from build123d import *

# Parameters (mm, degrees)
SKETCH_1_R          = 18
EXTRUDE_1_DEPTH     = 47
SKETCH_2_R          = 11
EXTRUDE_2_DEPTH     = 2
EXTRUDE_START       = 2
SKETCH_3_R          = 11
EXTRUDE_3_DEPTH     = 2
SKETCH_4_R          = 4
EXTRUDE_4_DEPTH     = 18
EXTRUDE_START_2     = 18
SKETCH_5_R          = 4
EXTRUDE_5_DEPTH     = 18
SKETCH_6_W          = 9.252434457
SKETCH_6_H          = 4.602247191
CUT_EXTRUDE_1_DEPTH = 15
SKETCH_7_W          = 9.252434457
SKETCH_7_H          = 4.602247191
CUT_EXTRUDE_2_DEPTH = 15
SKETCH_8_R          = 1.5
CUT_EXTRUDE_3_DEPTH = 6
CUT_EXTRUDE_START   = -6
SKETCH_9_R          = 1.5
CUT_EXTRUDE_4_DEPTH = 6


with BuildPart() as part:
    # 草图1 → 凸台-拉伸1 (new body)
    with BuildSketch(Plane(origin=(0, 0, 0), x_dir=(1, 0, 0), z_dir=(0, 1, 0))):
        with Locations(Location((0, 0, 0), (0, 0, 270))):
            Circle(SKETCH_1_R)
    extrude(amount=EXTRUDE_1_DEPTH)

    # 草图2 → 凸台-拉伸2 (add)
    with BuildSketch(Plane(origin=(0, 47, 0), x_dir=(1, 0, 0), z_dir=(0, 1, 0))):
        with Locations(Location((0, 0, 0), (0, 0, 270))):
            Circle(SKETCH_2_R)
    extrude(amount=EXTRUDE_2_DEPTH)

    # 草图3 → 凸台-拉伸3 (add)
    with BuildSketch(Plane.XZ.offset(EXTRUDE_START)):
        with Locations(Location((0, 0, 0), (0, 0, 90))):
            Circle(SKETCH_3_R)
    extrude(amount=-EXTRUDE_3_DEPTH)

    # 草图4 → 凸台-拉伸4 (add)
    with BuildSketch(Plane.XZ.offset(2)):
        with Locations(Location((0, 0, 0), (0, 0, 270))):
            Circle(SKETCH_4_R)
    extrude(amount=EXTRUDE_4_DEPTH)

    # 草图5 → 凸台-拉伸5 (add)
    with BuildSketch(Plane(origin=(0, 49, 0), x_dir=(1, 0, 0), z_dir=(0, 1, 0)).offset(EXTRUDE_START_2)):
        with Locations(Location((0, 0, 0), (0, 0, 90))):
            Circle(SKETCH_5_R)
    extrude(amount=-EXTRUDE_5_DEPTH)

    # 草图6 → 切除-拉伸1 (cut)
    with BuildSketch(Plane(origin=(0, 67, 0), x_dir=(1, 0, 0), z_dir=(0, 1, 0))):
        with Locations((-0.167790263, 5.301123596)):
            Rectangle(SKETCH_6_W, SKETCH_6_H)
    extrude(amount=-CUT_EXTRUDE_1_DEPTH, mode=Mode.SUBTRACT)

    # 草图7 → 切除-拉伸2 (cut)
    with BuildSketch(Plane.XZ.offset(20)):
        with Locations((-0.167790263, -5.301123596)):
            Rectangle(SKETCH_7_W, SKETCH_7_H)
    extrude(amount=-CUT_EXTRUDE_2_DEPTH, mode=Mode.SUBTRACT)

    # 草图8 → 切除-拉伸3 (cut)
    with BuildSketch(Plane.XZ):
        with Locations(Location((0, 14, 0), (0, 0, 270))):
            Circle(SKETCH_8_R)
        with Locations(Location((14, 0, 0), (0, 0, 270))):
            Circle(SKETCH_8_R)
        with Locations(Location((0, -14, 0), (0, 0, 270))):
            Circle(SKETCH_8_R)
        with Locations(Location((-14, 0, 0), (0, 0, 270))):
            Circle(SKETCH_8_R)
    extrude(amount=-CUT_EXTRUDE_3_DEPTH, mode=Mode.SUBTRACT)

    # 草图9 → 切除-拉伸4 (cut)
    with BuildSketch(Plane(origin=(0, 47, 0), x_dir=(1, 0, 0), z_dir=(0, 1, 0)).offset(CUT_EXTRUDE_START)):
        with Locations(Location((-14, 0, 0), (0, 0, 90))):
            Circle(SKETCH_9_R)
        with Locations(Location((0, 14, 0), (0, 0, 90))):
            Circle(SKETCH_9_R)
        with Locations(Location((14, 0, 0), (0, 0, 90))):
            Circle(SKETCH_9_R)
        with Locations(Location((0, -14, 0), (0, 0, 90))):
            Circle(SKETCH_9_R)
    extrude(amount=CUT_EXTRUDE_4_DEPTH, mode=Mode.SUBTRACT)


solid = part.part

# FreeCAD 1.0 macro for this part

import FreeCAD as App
import Part
import Sketcher

V = App.Vector


def add_polygon(sketch, points):
    """Adds a closed chain of lines whose ends are joined by coincident constraints."""
    first, n = sketch.GeometryCount, len(points)
    for a, b in zip(points, points[1:] + points[:1]):
        sketch.addGeometry(Part.LineSegment(App.Vector(*a, 0), App.Vector(*b, 0)), False)
    for i in range(n):
        sketch.addConstraint(Sketcher.Constraint("Coincident", first + i, 2, first + (i + 1) % n, 1))

doc = App.newDocument("Part")
params = doc.addObject("Spreadsheet::Sheet", "Params")
for row, (alias, value) in enumerate([
    ("sketch1_diameter", "36 mm"),
    ("pad1_length", "47 mm"),
    ("sketch2_diameter", "22 mm"),
    ("pad2_length", "2 mm"),
    ("sketch3_diameter", "22 mm"),
    ("pad3_length", "2 mm"),
    ("sketch4_diameter", "8 mm"),
    ("pad4_length", "18 mm"),
    ("sketch5_diameter", "8 mm"),
    ("pad5_length", "18 mm"),
    ("pocket1_length", "15 mm"),
    ("pocket2_length", "15 mm"),
    ("sketch8_diameter", "3 mm"),
    ("pocket3_length", "6 mm"),
    ("sketch9_diameter", "3 mm"),
    ("pocket4_length", "6 mm"),
], start=1):
    params.set(f"A{row}", alias)
    params.set(f"B{row}", "=" + value)
    params.setAlias(f"B{row}", alias)

body = doc.addObject("PartDesign::Body", "Body")

sketch1 = body.newObject("Sketcher::SketchObject", "Sketch")
sketch1.AttachmentSupport = (doc.getObject("XZ_Plane"), [""])
sketch1.MapMode = "FlatFace"
sketch1.addGeometry(Part.Circle(V(0, 0, 0), V(0, 0, 1), 18), False)
sketch1.addConstraint([
    Sketcher.Constraint("Coincident", 0, 3, -1, 1),
    Sketcher.Constraint("Diameter", 0, 36.0),
])
sketch1.setExpression("Constraints[1]", "Params.sketch1_diameter")
pad1 = body.newObject("PartDesign::Pad", "Pad")
pad1.Profile = sketch1
pad1.setExpression("Length", "Params.pad1_length")
pad1.Reversed = True

sketch2 = body.newObject("Sketcher::SketchObject", "Sketch001")
sketch2.AttachmentSupport = (doc.getObject("XZ_Plane"), [""])
sketch2.MapMode = "FlatFace"
sketch2.AttachmentOffset = App.Placement(V(0, 0, -47), App.Rotation())
sketch2.addGeometry(Part.Circle(V(0, 0, 0), V(0, 0, 1), 11), False)
sketch2.addConstraint([
    Sketcher.Constraint("Coincident", 0, 3, -1, 1),
    Sketcher.Constraint("Diameter", 0, 22.0),
])
sketch2.setExpression("Constraints[1]", "Params.sketch2_diameter")
pad2 = body.newObject("PartDesign::Pad", "Pad001")
pad2.Profile = sketch2
pad2.setExpression("Length", "Params.pad2_length")
pad2.Reversed = True

sketch3 = body.newObject("Sketcher::SketchObject", "Sketch002")
sketch3.AttachmentSupport = (doc.getObject("XZ_Plane"), [""])
sketch3.MapMode = "FlatFace"
sketch3.AttachmentOffset = App.Placement(V(0, 0, 2), App.Rotation())
sketch3.addGeometry(Part.Circle(V(0, 0, 0), V(0, 0, 1), 11), False)
sketch3.addConstraint([
    Sketcher.Constraint("Coincident", 0, 3, -1, 1),
    Sketcher.Constraint("Diameter", 0, 22.0),
])
sketch3.setExpression("Constraints[1]", "Params.sketch3_diameter")
pad3 = body.newObject("PartDesign::Pad", "Pad002")
pad3.Profile = sketch3
pad3.setExpression("Length", "Params.pad3_length")
pad3.Reversed = True

sketch4 = body.newObject("Sketcher::SketchObject", "Sketch003")
sketch4.AttachmentSupport = (doc.getObject("XZ_Plane"), [""])
sketch4.MapMode = "FlatFace"
sketch4.AttachmentOffset = App.Placement(V(0, 0, 2), App.Rotation())
sketch4.addGeometry(Part.Circle(V(0, 0, 0), V(0, 0, 1), 4), False)
sketch4.addConstraint([
    Sketcher.Constraint("Coincident", 0, 3, -1, 1),
    Sketcher.Constraint("Diameter", 0, 8.0),
])
sketch4.setExpression("Constraints[1]", "Params.sketch4_diameter")
pad4 = body.newObject("PartDesign::Pad", "Pad003")
pad4.Profile = sketch4
pad4.setExpression("Length", "Params.pad4_length")

sketch5 = body.newObject("Sketcher::SketchObject", "Sketch004")
sketch5.AttachmentSupport = (doc.getObject("XZ_Plane"), [""])
sketch5.MapMode = "FlatFace"
sketch5.AttachmentOffset = App.Placement(V(0, 0, -67), App.Rotation())
sketch5.addGeometry(Part.Circle(V(0, 0, 0), V(0, 0, 1), 4), False)
sketch5.addConstraint([
    Sketcher.Constraint("Coincident", 0, 3, -1, 1),
    Sketcher.Constraint("Diameter", 0, 8.0),
])
sketch5.setExpression("Constraints[1]", "Params.sketch5_diameter")
pad5 = body.newObject("PartDesign::Pad", "Pad004")
pad5.Profile = sketch5
pad5.setExpression("Length", "Params.pad5_length")

sketch6 = body.newObject("Sketcher::SketchObject", "Sketch005")
sketch6.AttachmentSupport = (doc.getObject("XZ_Plane"), [""])
sketch6.MapMode = "FlatFace"
sketch6.AttachmentOffset = App.Placement(V(0, 0, -67), App.Rotation())
add_polygon(sketch6, [(-4.794007, -7.602247), (-4.794007, -3), (4.458427, -3), (4.458427, -7.602247)])
sketch6.addConstraint([
    Sketcher.Constraint("Vertical", 0),
    Sketcher.Constraint("Horizontal", 1),
    Sketcher.Constraint("Vertical", 2),
    Sketcher.Constraint("Horizontal", 3),
    Sketcher.Constraint("DistanceY", 0, 2, -1, 1, 3.0),
    Sketcher.Constraint("DistanceX", 1, 1, 1, 2, 9.252434),
    Sketcher.Constraint("DistanceY", 0, 1, 0, 2, 4.602247),
    Sketcher.Constraint("DistanceX", 0, 2, -1, 1, 4.794007),
])
pocket1 = body.newObject("PartDesign::Pocket", "Pocket")
pocket1.Profile = sketch6
pocket1.setExpression("Length", "Params.pocket1_length")
pocket1.Reversed = True

sketch7 = body.newObject("Sketcher::SketchObject", "Sketch006")
sketch7.AttachmentSupport = (doc.getObject("XZ_Plane"), [""])
sketch7.MapMode = "FlatFace"
sketch7.AttachmentOffset = App.Placement(V(0, 0, 20), App.Rotation())
add_polygon(sketch7, [(-4.794007, -3), (-4.794007, -7.602247), (4.458427, -7.602247), (4.458427, -3)])
sketch7.addConstraint([
    Sketcher.Constraint("Vertical", 0),
    Sketcher.Constraint("Horizontal", 1),
    Sketcher.Constraint("Vertical", 2),
    Sketcher.Constraint("Horizontal", 3),
    Sketcher.Constraint("DistanceY", 2, 2, -1, 1, 3.0),
    Sketcher.Constraint("DistanceX", 1, 1, 1, 2, 9.252434),
    Sketcher.Constraint("DistanceY", 0, 2, 0, 1, 4.602247),
    Sketcher.Constraint("DistanceX", 0, 2, -1, 1, 4.794007),
])
pocket2 = body.newObject("PartDesign::Pocket", "Pocket001")
pocket2.Profile = sketch7
pocket2.setExpression("Length", "Params.pocket2_length")

sketch8 = body.newObject("Sketcher::SketchObject", "Sketch007")
sketch8.AttachmentSupport = (doc.getObject("XZ_Plane"), [""])
sketch8.MapMode = "FlatFace"
sketch8.addGeometry([
    Part.Circle(V(0, 14, 0), V(0, 0, 1), 1.5),
    Part.Circle(V(14, 0, 0), V(0, 0, 1), 1.5),
    Part.Circle(V(0, -14, 0), V(0, 0, 1), 1.5),
    Part.Circle(V(-14, 0, 0), V(0, 0, 1), 1.5),
], False)
sketch8.addConstraint([
    Sketcher.Constraint("Equal", 0, 1),
    Sketcher.Constraint("Equal", 1, 2),
    Sketcher.Constraint("Equal", 2, 3),
    Sketcher.Constraint("Symmetric", 0, 3, 2, 3, -1, 1),
    Sketcher.Constraint("Symmetric", 1, 3, 3, 3, -1, 1),
    Sketcher.Constraint("PointOnObject", 0, 3, -2),
    Sketcher.Constraint("PointOnObject", 1, 3, -1),
    Sketcher.Constraint("Diameter", 0, 3.0),
    Sketcher.Constraint("DistanceY", -1, 1, 0, 3, 14.0),
    Sketcher.Constraint("DistanceX", -1, 1, 1, 3, 14.0),
])
sketch8.setExpression("Constraints[7]", "Params.sketch8_diameter")
pocket3 = body.newObject("PartDesign::Pocket", "Pocket002")
pocket3.Profile = sketch8
pocket3.setExpression("Length", "Params.pocket3_length")

sketch9 = body.newObject("Sketcher::SketchObject", "Sketch008")
sketch9.AttachmentSupport = (doc.getObject("XZ_Plane"), [""])
sketch9.MapMode = "FlatFace"
sketch9.AttachmentOffset = App.Placement(V(0, 0, -41), App.Rotation())
sketch9.addGeometry([
    Part.Circle(V(-14, 0, 0), V(0, 0, 1), 1.5),
    Part.Circle(V(0, -14, 0), V(0, 0, 1), 1.5),
    Part.Circle(V(14, 0, 0), V(0, 0, 1), 1.5),
    Part.Circle(V(0, 14, 0), V(0, 0, 1), 1.5),
], False)
sketch9.addConstraint([
    Sketcher.Constraint("Equal", 0, 1),
    Sketcher.Constraint("Equal", 1, 2),
    Sketcher.Constraint("Equal", 2, 3),
    Sketcher.Constraint("Symmetric", 0, 3, 2, 3, -1, 1),
    Sketcher.Constraint("Symmetric", 1, 3, 3, 3, -1, 1),
    Sketcher.Constraint("PointOnObject", 0, 3, -1),
    Sketcher.Constraint("PointOnObject", 1, 3, -2),
    Sketcher.Constraint("Diameter", 0, 3.0),
    Sketcher.Constraint("DistanceX", 0, 3, -1, 1, 14.0),
    Sketcher.Constraint("DistanceY", 1, 3, -1, 1, 14.0),
])
sketch9.setExpression("Constraints[7]", "Params.sketch9_diameter")
pocket4 = body.newObject("PartDesign::Pocket", "Pocket003")
pocket4.Profile = sketch9
pocket4.setExpression("Length", "Params.pocket4_length")

doc.recompute()
